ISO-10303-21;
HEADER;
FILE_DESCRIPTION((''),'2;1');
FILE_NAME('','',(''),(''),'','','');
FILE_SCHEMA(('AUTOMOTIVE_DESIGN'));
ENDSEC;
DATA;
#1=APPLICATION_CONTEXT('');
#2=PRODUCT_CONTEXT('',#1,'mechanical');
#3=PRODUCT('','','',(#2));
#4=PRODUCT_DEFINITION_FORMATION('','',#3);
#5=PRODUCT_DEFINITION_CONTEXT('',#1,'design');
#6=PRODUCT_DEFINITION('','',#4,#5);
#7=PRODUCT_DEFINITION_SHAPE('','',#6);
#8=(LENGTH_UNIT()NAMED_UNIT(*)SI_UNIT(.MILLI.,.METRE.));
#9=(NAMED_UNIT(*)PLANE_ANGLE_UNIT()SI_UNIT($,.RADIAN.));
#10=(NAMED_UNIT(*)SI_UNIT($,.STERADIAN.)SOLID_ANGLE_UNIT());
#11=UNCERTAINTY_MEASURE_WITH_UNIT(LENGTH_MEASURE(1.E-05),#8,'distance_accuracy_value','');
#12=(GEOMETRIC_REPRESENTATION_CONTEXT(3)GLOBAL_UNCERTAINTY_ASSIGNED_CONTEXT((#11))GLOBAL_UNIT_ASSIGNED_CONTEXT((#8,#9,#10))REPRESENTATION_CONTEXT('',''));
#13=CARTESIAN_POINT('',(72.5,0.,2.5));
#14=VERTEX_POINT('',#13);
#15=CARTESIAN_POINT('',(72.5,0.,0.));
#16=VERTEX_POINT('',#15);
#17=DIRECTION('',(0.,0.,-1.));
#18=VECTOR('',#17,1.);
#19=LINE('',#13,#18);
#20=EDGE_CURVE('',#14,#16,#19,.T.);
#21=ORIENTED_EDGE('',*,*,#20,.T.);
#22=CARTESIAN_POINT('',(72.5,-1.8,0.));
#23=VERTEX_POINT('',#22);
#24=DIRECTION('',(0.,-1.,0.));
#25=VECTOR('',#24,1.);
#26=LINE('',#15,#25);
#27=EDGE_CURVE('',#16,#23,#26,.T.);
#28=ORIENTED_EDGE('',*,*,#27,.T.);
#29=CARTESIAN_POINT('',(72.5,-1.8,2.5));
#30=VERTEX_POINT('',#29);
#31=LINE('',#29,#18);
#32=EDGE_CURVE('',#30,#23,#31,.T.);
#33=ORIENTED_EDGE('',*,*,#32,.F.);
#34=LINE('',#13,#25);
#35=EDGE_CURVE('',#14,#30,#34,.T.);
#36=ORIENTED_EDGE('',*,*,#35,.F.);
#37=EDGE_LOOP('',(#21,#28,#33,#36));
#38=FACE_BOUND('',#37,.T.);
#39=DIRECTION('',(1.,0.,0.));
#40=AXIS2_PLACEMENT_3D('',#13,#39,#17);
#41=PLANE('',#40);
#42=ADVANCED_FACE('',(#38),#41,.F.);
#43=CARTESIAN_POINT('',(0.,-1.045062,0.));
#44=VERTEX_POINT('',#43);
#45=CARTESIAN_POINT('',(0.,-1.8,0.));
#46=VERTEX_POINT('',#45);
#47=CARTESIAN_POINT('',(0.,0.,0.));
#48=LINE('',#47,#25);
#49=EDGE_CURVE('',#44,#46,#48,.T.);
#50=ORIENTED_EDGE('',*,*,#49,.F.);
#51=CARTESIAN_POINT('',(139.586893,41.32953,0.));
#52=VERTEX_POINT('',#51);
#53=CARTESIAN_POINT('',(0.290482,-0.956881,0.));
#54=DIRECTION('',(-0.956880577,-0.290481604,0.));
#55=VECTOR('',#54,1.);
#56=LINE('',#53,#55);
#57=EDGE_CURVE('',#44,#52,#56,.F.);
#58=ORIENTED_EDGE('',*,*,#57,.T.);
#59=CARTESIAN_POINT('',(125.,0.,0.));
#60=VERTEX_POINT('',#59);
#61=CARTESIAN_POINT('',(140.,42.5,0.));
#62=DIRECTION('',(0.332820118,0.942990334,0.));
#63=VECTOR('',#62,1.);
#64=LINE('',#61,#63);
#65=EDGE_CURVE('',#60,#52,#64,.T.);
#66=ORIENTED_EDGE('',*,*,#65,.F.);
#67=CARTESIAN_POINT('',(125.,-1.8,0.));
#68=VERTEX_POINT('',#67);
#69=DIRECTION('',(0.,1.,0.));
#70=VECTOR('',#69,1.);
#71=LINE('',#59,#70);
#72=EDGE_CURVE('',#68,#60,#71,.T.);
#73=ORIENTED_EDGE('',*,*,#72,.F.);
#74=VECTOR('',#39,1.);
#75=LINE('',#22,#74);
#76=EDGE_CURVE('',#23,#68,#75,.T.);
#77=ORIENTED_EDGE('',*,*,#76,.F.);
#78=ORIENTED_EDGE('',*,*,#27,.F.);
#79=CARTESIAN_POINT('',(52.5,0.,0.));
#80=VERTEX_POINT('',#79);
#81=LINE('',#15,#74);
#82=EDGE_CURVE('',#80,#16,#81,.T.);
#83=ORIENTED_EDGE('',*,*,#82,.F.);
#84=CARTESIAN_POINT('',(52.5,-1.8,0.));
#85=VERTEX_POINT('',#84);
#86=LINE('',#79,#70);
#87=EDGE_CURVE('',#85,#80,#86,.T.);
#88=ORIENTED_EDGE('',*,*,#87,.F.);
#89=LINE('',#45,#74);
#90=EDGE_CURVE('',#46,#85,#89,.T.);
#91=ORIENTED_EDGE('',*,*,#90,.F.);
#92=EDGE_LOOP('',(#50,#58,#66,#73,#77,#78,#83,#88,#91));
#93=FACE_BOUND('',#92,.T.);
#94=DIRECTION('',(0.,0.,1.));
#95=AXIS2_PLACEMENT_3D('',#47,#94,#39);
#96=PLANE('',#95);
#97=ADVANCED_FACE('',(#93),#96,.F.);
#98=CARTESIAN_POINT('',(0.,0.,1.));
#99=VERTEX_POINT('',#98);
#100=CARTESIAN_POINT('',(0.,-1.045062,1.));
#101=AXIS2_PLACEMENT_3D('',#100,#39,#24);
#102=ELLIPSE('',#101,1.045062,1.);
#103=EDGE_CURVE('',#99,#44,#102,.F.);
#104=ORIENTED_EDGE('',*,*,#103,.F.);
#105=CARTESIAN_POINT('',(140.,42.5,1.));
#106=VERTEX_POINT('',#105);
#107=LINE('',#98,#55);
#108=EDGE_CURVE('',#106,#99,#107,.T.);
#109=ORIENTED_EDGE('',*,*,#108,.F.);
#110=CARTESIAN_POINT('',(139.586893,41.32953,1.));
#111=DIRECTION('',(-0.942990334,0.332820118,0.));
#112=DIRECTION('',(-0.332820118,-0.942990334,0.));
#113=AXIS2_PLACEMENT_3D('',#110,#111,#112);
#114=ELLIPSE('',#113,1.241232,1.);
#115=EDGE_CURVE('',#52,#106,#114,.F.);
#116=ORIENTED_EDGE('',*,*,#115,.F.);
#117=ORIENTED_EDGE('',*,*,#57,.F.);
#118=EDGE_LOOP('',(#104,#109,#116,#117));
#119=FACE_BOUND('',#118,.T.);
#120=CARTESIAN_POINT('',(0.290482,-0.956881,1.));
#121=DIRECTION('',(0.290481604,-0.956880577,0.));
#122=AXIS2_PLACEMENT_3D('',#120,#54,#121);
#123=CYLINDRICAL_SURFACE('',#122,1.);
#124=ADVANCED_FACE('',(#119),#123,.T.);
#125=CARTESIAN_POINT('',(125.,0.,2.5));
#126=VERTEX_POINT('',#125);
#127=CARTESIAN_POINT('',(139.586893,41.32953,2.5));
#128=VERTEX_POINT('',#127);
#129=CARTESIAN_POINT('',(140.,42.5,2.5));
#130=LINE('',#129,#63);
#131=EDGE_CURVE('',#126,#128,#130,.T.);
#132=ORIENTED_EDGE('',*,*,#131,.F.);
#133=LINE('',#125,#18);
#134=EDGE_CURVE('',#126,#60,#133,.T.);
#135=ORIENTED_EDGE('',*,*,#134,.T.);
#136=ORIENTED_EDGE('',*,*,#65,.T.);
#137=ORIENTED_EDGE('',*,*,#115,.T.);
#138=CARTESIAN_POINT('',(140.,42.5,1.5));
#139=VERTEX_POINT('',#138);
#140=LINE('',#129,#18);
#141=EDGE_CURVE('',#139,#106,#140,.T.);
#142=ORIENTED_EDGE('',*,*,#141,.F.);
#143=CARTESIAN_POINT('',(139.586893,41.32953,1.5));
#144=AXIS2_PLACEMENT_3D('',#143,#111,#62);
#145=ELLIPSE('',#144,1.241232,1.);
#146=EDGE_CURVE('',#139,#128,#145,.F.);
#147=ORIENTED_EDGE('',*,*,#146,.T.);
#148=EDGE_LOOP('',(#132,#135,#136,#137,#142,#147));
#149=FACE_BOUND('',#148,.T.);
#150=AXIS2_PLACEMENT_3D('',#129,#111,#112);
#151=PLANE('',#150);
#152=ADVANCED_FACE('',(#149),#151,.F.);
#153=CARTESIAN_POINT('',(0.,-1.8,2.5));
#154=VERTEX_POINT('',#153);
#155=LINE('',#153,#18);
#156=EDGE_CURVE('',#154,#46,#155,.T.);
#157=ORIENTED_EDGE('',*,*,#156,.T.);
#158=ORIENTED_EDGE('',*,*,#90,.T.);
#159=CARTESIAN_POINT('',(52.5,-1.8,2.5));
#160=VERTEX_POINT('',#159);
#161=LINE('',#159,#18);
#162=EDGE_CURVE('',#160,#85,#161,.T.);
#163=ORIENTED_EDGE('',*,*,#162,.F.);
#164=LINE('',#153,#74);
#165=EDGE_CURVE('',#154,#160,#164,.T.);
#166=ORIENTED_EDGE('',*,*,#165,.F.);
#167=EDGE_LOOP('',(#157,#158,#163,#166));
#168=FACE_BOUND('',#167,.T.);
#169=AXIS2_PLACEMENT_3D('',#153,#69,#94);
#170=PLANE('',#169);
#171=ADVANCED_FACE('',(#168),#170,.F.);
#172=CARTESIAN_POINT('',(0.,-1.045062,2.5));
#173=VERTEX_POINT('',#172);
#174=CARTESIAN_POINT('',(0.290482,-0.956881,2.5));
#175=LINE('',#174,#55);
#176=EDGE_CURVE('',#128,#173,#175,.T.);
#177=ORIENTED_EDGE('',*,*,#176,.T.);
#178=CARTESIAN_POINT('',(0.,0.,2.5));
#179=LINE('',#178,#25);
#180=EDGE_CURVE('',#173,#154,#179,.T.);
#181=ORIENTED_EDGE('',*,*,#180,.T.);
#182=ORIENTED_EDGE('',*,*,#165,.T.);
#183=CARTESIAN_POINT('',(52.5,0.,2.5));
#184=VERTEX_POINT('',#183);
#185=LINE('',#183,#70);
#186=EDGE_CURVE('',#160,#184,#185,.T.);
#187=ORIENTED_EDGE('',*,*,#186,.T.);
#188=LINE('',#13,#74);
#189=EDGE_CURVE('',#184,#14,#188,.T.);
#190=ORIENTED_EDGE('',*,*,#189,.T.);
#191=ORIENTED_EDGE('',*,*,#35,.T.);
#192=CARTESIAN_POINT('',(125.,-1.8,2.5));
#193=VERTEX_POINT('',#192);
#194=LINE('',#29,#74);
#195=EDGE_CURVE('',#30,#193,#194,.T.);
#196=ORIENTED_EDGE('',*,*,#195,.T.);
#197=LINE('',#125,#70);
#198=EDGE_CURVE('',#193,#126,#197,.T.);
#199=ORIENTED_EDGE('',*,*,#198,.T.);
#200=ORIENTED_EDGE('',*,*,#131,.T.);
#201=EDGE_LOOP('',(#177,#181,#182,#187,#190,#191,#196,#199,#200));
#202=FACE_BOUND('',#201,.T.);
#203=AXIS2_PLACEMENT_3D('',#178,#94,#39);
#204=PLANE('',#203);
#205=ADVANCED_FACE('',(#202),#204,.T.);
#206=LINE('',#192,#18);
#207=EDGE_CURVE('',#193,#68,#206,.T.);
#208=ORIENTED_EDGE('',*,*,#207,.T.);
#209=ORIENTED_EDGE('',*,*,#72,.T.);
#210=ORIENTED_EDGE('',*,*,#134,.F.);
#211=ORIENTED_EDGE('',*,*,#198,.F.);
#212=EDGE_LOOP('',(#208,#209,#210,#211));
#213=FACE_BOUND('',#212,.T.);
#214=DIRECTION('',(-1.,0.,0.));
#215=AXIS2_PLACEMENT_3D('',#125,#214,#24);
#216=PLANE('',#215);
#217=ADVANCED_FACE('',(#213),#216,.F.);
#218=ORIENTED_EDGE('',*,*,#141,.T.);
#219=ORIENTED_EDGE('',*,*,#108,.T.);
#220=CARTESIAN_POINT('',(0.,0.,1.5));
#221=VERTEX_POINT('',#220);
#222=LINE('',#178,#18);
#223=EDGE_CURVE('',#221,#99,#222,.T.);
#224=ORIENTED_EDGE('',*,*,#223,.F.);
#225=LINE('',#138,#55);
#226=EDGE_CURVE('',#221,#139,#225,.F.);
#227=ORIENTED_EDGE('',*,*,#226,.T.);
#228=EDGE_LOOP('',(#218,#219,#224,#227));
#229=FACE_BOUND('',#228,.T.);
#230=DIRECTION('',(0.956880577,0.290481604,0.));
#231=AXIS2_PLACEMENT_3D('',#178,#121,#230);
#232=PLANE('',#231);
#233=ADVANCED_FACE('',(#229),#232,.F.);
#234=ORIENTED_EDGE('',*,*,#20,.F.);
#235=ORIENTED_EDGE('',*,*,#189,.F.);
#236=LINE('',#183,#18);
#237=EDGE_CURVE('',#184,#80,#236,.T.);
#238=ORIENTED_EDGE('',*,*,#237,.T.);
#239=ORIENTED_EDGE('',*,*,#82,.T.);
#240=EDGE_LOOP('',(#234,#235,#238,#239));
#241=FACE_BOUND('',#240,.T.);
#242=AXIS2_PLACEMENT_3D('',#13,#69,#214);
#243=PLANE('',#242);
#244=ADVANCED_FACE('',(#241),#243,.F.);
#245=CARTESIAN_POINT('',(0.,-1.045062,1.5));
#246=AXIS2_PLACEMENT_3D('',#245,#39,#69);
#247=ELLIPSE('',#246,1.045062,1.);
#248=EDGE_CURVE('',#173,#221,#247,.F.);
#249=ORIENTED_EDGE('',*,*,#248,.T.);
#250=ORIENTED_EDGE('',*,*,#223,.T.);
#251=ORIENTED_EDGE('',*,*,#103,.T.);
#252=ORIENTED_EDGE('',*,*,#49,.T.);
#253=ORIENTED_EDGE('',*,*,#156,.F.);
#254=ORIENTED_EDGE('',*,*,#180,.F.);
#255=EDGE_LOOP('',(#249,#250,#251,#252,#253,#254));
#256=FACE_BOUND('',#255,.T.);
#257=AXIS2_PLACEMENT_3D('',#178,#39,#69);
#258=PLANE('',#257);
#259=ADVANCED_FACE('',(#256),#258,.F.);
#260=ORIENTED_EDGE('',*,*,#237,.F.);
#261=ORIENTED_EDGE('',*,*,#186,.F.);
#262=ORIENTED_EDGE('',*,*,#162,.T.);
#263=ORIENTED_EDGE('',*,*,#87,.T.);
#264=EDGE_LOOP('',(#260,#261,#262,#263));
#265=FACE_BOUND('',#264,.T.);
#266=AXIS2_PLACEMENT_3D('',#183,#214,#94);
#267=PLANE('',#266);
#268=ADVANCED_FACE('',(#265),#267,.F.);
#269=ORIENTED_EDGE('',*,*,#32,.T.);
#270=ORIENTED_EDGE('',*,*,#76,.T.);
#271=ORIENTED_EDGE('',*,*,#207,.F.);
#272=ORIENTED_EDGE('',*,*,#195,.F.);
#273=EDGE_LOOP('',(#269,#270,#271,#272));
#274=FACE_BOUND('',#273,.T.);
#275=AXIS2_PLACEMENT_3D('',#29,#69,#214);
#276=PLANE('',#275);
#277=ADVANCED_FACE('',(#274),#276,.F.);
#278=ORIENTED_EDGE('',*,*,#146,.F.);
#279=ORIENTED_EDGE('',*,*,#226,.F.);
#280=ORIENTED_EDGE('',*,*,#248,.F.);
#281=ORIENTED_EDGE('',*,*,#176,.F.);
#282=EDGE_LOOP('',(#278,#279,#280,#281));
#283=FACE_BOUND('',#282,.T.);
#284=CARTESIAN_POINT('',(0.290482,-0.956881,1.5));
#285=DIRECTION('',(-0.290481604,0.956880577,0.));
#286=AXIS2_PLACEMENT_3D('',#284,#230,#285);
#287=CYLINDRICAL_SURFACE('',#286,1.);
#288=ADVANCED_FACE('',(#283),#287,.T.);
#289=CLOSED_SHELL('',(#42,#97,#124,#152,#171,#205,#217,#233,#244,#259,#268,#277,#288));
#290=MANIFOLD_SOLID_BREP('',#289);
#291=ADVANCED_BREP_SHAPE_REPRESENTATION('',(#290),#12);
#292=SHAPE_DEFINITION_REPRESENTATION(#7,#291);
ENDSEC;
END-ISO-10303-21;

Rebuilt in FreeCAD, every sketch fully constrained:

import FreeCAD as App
import Part
import Sketcher
from FreeCAD import Vector


def edges_at(feature, points):
    """Names of the edges that pass closest to the given points."""
    edges = feature.Shape.Edges
    near = lambda p: min(range(len(edges)), key=lambda i: edges[i].distToShape(Part.Vertex(*p))[0])
    return sorted({f"Edge{near(p) + 1}" for p in points})


def add_polygon(sketch, points):
    """Adds a closed chain of lines whose ends are joined by coincident constraints."""
    first, n = sketch.GeometryCount, len(points)
    for a, b in zip(points, points[1:] + points[:1]):
        sketch.addGeometry(Part.LineSegment(App.Vector(*a, 0), App.Vector(*b, 0)), False)
    for i in range(n):
        sketch.addConstraint(Sketcher.Constraint("Coincident", first + i, 2, first + (i + 1) % n, 1))

doc = App.newDocument("Part")
params = doc.addObject("Spreadsheet::Sheet", "Params")
for row, (alias, value) in enumerate([
    ("sketch1_width", "20 mm"),
    ("sketch1_width2", "52.5 mm"),
    ("sketch1_height", "1.8 mm"),
    ("pad1_length", "2.5 mm"),
    ("fillet_radius", "1 mm"),
], start=1):
    params.set(f"A{row}", alias)
    params.set(f"B{row}", "=" + value)
    params.setAlias(f"B{row}", alias)

body = doc.addObject("PartDesign::Body", "Body")

# Sketch on XY plane
sketch1 = body.newObject("Sketcher::SketchObject", "Sketch")
sketch1.AttachmentSupport = (doc.getObject("XY_Plane"), [""])
sketch1.MapMode = "FlatFace"
add_polygon(sketch1, [(140, 42.5), (0, 0), (0, -1.8), (52.5, -1.8), (52.5, 0), (72.5, 0), (72.5, -1.8), (125, -1.8), (125, 0)])  # lines 0-8
sketch1.addConstraint([
    Sketcher.Constraint("Vertical", 1),
    Sketcher.Constraint("Horizontal", 2),
    Sketcher.Constraint("Vertical", 3),
    Sketcher.Constraint("Horizontal", 4),
    Sketcher.Constraint("Vertical", 5),
    Sketcher.Constraint("Horizontal", 6),
    Sketcher.Constraint("Vertical", 7),
    Sketcher.Constraint("Coincident", 0, 2, -1, 1),
    Sketcher.Constraint("PointOnObject", 3, 2, -1),
    Sketcher.Constraint("PointOnObject", 7, 2, -1),
    Sketcher.Constraint("Horizontal", 2, 2, 5, 2),
    Sketcher.Constraint("Equal", 2, 6),
    Sketcher.Constraint("DistanceX", 4, 1, 4, 2, 20.0),
    Sketcher.Constraint("DistanceX", 2, 1, 2, 2, 52.5),
    Sketcher.Constraint("DistanceY", 1, 2, 1, 1, 1.8),
    Sketcher.Constraint("DistanceX", -1, 1, 8, 2, 140.0),
    Sketcher.Constraint("DistanceY", -1, 1, 8, 2, 42.5),
])
sketch1.setExpression("Constraints[21]", "Params.sketch1_width")
sketch1.setExpression("Constraints[22]", "Params.sketch1_width2")
sketch1.setExpression("Constraints[23]", "Params.sketch1_height")
pad1 = body.newObject("PartDesign::Pad", "Pad")
pad1.Profile = sketch1
pad1.setExpression("Length", "Params.pad1_length")
doc.recompute()

fillet = body.newObject("PartDesign::Fillet", "Fillet")
fillet.Base = (pad1, edges_at(pad1, [(70, 21.25, 0), (70, 21.25, 2.5)]))
fillet.setExpression("Radius", "Params.fillet_radius")

doc.recompute()
